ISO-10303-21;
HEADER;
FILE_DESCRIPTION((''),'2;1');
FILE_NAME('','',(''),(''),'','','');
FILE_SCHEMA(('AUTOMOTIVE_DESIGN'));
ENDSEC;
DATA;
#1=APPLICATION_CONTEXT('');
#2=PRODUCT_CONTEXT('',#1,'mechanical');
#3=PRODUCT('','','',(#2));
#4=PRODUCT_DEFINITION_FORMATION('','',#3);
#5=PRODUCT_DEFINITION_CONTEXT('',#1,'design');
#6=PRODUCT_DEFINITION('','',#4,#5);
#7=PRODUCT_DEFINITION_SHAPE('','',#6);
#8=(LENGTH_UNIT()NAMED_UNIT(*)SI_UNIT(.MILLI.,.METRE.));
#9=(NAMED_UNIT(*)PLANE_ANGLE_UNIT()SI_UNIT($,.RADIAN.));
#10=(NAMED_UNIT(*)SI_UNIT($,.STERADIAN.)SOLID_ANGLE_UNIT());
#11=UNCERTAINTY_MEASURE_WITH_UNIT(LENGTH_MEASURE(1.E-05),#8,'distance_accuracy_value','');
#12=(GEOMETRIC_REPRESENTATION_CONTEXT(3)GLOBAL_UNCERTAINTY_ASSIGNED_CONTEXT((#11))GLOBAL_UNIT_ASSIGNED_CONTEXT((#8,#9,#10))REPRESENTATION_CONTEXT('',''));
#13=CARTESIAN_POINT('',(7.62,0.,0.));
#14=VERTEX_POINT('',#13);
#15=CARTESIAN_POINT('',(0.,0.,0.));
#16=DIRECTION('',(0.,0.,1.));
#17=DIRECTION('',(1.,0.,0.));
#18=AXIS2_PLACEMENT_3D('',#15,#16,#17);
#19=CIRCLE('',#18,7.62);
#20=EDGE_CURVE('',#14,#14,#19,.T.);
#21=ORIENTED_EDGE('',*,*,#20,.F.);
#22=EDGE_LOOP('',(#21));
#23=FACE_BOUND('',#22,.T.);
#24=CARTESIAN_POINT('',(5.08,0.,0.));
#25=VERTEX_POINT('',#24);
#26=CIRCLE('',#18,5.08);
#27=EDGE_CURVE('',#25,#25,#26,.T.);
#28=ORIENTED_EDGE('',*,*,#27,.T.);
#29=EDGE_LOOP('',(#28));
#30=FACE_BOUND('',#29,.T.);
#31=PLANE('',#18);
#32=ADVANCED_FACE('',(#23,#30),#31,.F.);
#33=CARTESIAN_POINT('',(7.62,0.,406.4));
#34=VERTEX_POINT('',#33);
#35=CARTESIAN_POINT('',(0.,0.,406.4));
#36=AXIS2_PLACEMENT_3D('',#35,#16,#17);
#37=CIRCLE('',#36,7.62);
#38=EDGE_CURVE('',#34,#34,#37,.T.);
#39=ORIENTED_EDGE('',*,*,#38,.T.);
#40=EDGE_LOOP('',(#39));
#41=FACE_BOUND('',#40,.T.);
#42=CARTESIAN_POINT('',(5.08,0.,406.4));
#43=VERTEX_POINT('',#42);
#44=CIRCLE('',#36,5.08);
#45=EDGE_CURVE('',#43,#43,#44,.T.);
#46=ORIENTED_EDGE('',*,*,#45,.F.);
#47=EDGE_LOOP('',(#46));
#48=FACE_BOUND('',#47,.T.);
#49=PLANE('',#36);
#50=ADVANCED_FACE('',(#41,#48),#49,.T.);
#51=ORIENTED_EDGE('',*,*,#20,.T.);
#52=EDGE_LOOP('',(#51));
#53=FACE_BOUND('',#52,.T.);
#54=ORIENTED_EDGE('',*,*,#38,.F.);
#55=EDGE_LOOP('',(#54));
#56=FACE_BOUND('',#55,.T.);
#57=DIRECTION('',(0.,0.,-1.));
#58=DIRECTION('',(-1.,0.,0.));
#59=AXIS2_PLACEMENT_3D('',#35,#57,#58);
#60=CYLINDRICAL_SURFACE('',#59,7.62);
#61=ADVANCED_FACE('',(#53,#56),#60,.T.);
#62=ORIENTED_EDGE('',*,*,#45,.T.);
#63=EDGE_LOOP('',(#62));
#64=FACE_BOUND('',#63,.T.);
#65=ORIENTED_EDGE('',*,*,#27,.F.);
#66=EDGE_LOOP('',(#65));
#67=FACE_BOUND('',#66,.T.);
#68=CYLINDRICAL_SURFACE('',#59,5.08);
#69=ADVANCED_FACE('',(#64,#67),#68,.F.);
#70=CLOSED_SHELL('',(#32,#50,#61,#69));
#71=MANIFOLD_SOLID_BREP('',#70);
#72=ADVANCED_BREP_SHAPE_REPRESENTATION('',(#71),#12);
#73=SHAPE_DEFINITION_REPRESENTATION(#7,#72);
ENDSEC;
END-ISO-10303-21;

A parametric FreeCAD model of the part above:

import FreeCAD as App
import Part
import Sketcher

V = App.Vector
Q = App.Units.Quantity

doc = App.newDocument("Part")
body = doc.addObject("PartDesign::Body", "Body")

# Sketch on XY plane
sketch1 = body.newObject("Sketcher::SketchObject", "Sketch")
sketch1.AttachmentSupport = (doc.getObject("XY_Plane"), [""])
sketch1.MapMode = "FlatFace"
sketch1.addGeometry([
    Part.Circle(V(0, 0, 0), V(0, 0, 1), 7.62),
    Part.Circle(V(0, 0, 0), V(0, 0, 1), 5.08),
], False)
sketch1.addConstraint([
    Sketcher.Constraint("Coincident", 0, 3, -1, 1),
    Sketcher.Constraint("Coincident", 1, 3, -1, 1),
    Sketcher.Constraint("Diameter", 0, Q("0.6 in")),
    Sketcher.Constraint("Diameter", 1, Q("0.4 in")),
])
pad1 = body.newObject("PartDesign::Pad", "Pad")
pad1.Profile = sketch1
pad1.Length = Q("16 in")

doc.recompute()
